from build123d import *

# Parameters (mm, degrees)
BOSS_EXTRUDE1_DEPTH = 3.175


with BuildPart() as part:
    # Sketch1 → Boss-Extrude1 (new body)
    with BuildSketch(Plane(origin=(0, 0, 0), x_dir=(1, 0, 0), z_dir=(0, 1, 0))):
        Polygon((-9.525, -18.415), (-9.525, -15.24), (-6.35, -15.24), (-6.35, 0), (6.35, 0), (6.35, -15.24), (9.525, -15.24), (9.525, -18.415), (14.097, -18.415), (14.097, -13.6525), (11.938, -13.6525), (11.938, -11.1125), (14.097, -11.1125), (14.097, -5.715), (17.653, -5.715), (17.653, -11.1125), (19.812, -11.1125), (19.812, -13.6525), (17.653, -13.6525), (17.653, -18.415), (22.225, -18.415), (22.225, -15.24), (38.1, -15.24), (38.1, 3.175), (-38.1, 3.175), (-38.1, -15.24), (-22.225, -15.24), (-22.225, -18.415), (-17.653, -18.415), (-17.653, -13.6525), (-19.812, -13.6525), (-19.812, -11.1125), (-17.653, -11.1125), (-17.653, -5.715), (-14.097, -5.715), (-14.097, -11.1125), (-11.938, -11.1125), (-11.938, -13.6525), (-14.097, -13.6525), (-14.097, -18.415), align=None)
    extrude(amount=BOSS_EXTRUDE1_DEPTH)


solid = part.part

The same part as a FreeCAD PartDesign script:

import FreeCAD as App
import Part
import Sketcher
from FreeCAD import Vector
Q = App.Units.Quantity

doc = App.newDocument("Part")
body = doc.addObject("PartDesign::Body", "Body")

sketch1 = body.newObject("Sketcher::SketchObject", "Sketch")
sketch1.AttachmentSupport = (doc.getObject("XZ_Plane"), [""])
sketch1.MapMode = "FlatFace"
sketch1.addGeometry([
    Part.LineSegment(Vector(-9.5, 18.4, 0), Vector(-9.5, 15.2, 0)),
    Part.LineSegment(Vector(-9.5, 15.2, 0), Vector(-6.3, 15.2, 0)),
    Part.LineSegment(Vector(-6.3, 15.2, 0), Vector(-6.3, 0, 0)),
    Part.LineSegment(Vector(-6.3, 0, 0), Vector(6.3, 0, 0)),
    Part.LineSegment(Vector(6.3, 0, 0), Vector(6.3, 15.2, 0)),
    Part.LineSegment(Vector(6.3, 15.2, 0), Vector(9.5, 15.2, 0)),
    Part.LineSegment(Vector(9.5, 15.2, 0), Vector(9.5, 18.4, 0)),
    Part.LineSegment(Vector(9.5, 18.4, 0), Vector(14.1, 18.4, 0)),
    Part.LineSegment(Vector(14.1, 18.4, 0), Vector(14.1, 13.7, 0)),
    Part.LineSegment(Vector(14.1, 13.7, 0), Vector(11.9, 13.7, 0)),
    Part.LineSegment(Vector(11.9, 13.7, 0), Vector(11.9, 11.1, 0)),
    Part.LineSegment(Vector(11.9, 11.1, 0), Vector(14.1, 11.1, 0)),
    Part.LineSegment(Vector(14.1, 11.1, 0), Vector(14.1, 5.7, 0)),
    Part.LineSegment(Vector(14.1, 5.7, 0), Vector(17.7, 5.7, 0)),
    Part.LineSegment(Vector(17.7, 5.7, 0), Vector(17.7, 11.1, 0)),
    Part.LineSegment(Vector(17.7, 11.1, 0), Vector(19.8, 11.1, 0)),
    Part.LineSegment(Vector(19.8, 11.1, 0), Vector(19.8, 13.7, 0)),
    Part.LineSegment(Vector(19.8, 13.7, 0), Vector(17.7, 13.7, 0)),
    Part.LineSegment(Vector(17.7, 13.7, 0), Vector(17.7, 18.4, 0)),
    Part.LineSegment(Vector(17.7, 18.4, 0), Vector(22.2, 18.4, 0)),
    Part.LineSegment(Vector(22.2, 18.4, 0), Vector(22.2, 15.2, 0)),
    Part.LineSegment(Vector(22.2, 15.2, 0), Vector(38.1, 15.2, 0)),
    Part.LineSegment(Vector(38.1, 15.2, 0), Vector(38.1, -3.2, 0)),
    Part.LineSegment(Vector(38.1, -3.2, 0), Vector(-38.1, -3.2, 0)),
    Part.LineSegment(Vector(-38.1, -3.2, 0), Vector(-38.1, 15.2, 0)),
    Part.LineSegment(Vector(-38.1, 15.2, 0), Vector(-22.2, 15.2, 0)),
    Part.LineSegment(Vector(-22.2, 15.2, 0), Vector(-22.2, 18.4, 0)),
    Part.LineSegment(Vector(-22.2, 18.4, 0), Vector(-17.7, 18.4, 0)),
    Part.LineSegment(Vector(-17.7, 18.4, 0), Vector(-17.7, 13.7, 0)),
    Part.LineSegment(Vector(-17.7, 13.7, 0), Vector(-19.8, 13.7, 0)),
    Part.LineSegment(Vector(-19.8, 13.7, 0), Vector(-19.8, 11.1, 0)),
    Part.LineSegment(Vector(-19.8, 11.1, 0), Vector(-17.7, 11.1, 0)),
    Part.LineSegment(Vector(-17.7, 11.1, 0), Vector(-17.7, 5.7, 0)),
    Part.LineSegment(Vector(-17.7, 5.7, 0), Vector(-14.1, 5.7, 0)),
    Part.LineSegment(Vector(-14.1, 5.7, 0), Vector(-14.1, 11.1, 0)),
    Part.LineSegment(Vector(-14.1, 11.1, 0), Vector(-11.9, 11.1, 0)),
    Part.LineSegment(Vector(-11.9, 11.1, 0), Vector(-11.9, 13.7, 0)),
    Part.LineSegment(Vector(-11.9, 13.7, 0), Vector(-14.1, 13.7, 0)),
    Part.LineSegment(Vector(-14.1, 13.7, 0), Vector(-14.1, 18.4, 0)),
    Part.LineSegment(Vector(-14.1, 18.4, 0), Vector(-9.5, 18.4, 0)),
], False)
sketch1.addConstraint([
    Sketcher.Constraint("Coincident", 0, 2, 1, 1),
    Sketcher.Constraint("Coincident", 1, 2, 2, 1),
    Sketcher.Constraint("Coincident", 2, 2, 3, 1),
    Sketcher.Constraint("Coincident", 3, 2, 4, 1),
    Sketcher.Constraint("Coincident", 4, 2, 5, 1),
    Sketcher.Constraint("Coincident", 5, 2, 6, 1),
    Sketcher.Constraint("Coincident", 6, 2, 7, 1),
    Sketcher.Constraint("Coincident", 7, 2, 8, 1),
    Sketcher.Constraint("Coincident", 8, 2, 9, 1),
    Sketcher.Constraint("Coincident", 9, 2, 10, 1),
    Sketcher.Constraint("Coincident", 10, 2, 11, 1),
    Sketcher.Constraint("Coincident", 11, 2, 12, 1),
    Sketcher.Constraint("Coincident", 12, 2, 13, 1),
    Sketcher.Constraint("Coincident", 13, 2, 14, 1),
    Sketcher.Constraint("Coincident", 14, 2, 15, 1),
    Sketcher.Constraint("Coincident", 15, 2, 16, 1),
    Sketcher.Constraint("Coincident", 16, 2, 17, 1),
    Sketcher.Constraint("Coincident", 17, 2, 18, 1),
    Sketcher.Constraint("Coincident", 18, 2, 19, 1),
    Sketcher.Constraint("Coincident", 19, 2, 20, 1),
    Sketcher.Constraint("Coincident", 20, 2, 21, 1),
    Sketcher.Constraint("Coincident", 21, 2, 22, 1),
    Sketcher.Constraint("Coincident", 22, 2, 23, 1),
    Sketcher.Constraint("Coincident", 23, 2, 24, 1),
    Sketcher.Constraint("Coincident", 24, 2, 25, 1),
    Sketcher.Constraint("Coincident", 25, 2, 26, 1),
    Sketcher.Constraint("Coincident", 26, 2, 27, 1),
    Sketcher.Constraint("Coincident", 27, 2, 28, 1),
    Sketcher.Constraint("Coincident", 28, 2, 29, 1),
    Sketcher.Constraint("Coincident", 29, 2, 30, 1),
    Sketcher.Constraint("Coincident", 30, 2, 31, 1),
    Sketcher.Constraint("Coincident", 31, 2, 32, 1),
    Sketcher.Constraint("Coincident", 32, 2, 33, 1),
    Sketcher.Constraint("Coincident", 33, 2, 34, 1),
    Sketcher.Constraint("Coincident", 34, 2, 35, 1),
    Sketcher.Constraint("Coincident", 35, 2, 36, 1),
    Sketcher.Constraint("Coincident", 36, 2, 37, 1),
    Sketcher.Constraint("Coincident", 37, 2, 38, 1),
    Sketcher.Constraint("Coincident", 38, 2, 39, 1),
    Sketcher.Constraint("Coincident", 39, 2, 0, 1),
    Sketcher.Constraint("Vertical", 0),
    Sketcher.Constraint("Horizontal", 1),
    Sketcher.Constraint("Vertical", 2),
    Sketcher.Constraint("Horizontal", 3),
    Sketcher.Constraint("Vertical", 4),
    Sketcher.Constraint("Horizontal", 5),
    Sketcher.Constraint("Vertical", 6),
    Sketcher.Constraint("Horizontal", 7),
    Sketcher.Constraint("Vertical", 8),
    Sketcher.Constraint("Horizontal", 9),
    Sketcher.Constraint("Vertical", 10),
    Sketcher.Constraint("Horizontal", 11),
    Sketcher.Constraint("Vertical", 12),
    Sketcher.Constraint("Horizontal", 13),
    Sketcher.Constraint("Vertical", 14),
    Sketcher.Constraint("Horizontal", 15),
    Sketcher.Constraint("Vertical", 16),
    Sketcher.Constraint("Horizontal", 17),
    Sketcher.Constraint("Vertical", 18),
    Sketcher.Constraint("Horizontal", 19),
    Sketcher.Constraint("Vertical", 20),
    Sketcher.Constraint("Horizontal", 21),
    Sketcher.Constraint("Vertical", 22),
    Sketcher.Constraint("Horizontal", 23),
    Sketcher.Constraint("Vertical", 24),
    Sketcher.Constraint("Horizontal", 25),
    Sketcher.Constraint("Vertical", 26),
    Sketcher.Constraint("Horizontal", 27),
    Sketcher.Constraint("Vertical", 28),
    Sketcher.Constraint("Horizontal", 29),
    Sketcher.Constraint("Vertical", 30),
    Sketcher.Constraint("Horizontal", 31),
    Sketcher.Constraint("Vertical", 32),
    Sketcher.Constraint("Horizontal", 33),
    Sketcher.Constraint("Vertical", 34),
    Sketcher.Constraint("Horizontal", 35),
    Sketcher.Constraint("Vertical", 36),
    Sketcher.Constraint("Horizontal", 37),
    Sketcher.Constraint("Vertical", 38),
    Sketcher.Constraint("Horizontal", 39),
    Sketcher.Constraint("Symmetric", 2, 2, 3, 2, -1, 1),
    Sketcher.Constraint("Symmetric", 0, 2, 5, 2, -2),
    Sketcher.Constraint("Symmetric", 21, 2, 24, 2, -2),
    Sketcher.Constraint("Symmetric", 19, 2, 26, 2, -2),
    Sketcher.Constraint("Symmetric", 17, 2, 28, 2, -2),
    Sketcher.Constraint("Symmetric", 15, 2, 30, 2, -2),
    Sketcher.Constraint("Symmetric", 13, 2, 32, 2, -2),
    Sketcher.Constraint("Symmetric", 11, 2, 34, 2, -2),
    Sketcher.Constraint("Symmetric", 9, 2, 36, 2, -2),
    Sketcher.Constraint("Symmetric", 7, 2, 38, 2, -2),
    Sketcher.Constraint("Horizontal", 11, 2, 14, 2),
    Sketcher.Constraint("Horizontal", 9, 2, 16, 2),
    Sketcher.Constraint("Horizontal", 7, 2, 18, 2),
    Sketcher.Constraint("Horizontal", 5, 2, 20, 2),
    Sketcher.Constraint("Vertical", 8, 2, 11, 2),
    Sketcher.Constraint("Vertical", 14, 2, 17, 2),
    Sketcher.Constraint("Equal", 11, 15),
    Sketcher.Constraint("Equal", 7, 19),
    Sketcher.Constraint("Equal", 5, 0),
    Sketcher.Constraint("DistanceX", 23, 2, 23, 1, Q("3 in")),
    Sketcher.Constraint("DistanceX", 3, 1, 3, 2, Q("0.5 in")),
    Sketcher.Constraint("DistanceY", 2, 2, 2, 1, Q("0.6 in")),
    Sketcher.Constraint("DistanceY", 10, 2, 10, 1, Q("0.1 in")),
    Sketcher.Constraint("DistanceX", 7, 1, 7, 2, Q("0.18 in")),
    Sketcher.Constraint("DistanceX", 13, 1, 13, 2, Q("0.14 in")),
    Sketcher.Constraint("DistanceX", 1, 1, 1, 2, Q("0.125 in")),
    Sketcher.Constraint("DistanceX", 9, 2, 9, 1, Q("0.085 in")),
    Sketcher.Constraint("DistanceY", 8, 2, 8, 1, Q("0.1875 in")),
    Sketcher.Constraint("DistanceY", 22, 2, 22, 1, Q("0.725 in")),
    Sketcher.Constraint("DistanceY", 22, 2, 13, 2, Q("0.35 in")),
])
pad1 = body.newObject("PartDesign::Pad", "Pad")
pad1.Profile = sketch1
pad1.Length = Q("0.125 in")
pad1.Reversed = True

doc.recompute()
